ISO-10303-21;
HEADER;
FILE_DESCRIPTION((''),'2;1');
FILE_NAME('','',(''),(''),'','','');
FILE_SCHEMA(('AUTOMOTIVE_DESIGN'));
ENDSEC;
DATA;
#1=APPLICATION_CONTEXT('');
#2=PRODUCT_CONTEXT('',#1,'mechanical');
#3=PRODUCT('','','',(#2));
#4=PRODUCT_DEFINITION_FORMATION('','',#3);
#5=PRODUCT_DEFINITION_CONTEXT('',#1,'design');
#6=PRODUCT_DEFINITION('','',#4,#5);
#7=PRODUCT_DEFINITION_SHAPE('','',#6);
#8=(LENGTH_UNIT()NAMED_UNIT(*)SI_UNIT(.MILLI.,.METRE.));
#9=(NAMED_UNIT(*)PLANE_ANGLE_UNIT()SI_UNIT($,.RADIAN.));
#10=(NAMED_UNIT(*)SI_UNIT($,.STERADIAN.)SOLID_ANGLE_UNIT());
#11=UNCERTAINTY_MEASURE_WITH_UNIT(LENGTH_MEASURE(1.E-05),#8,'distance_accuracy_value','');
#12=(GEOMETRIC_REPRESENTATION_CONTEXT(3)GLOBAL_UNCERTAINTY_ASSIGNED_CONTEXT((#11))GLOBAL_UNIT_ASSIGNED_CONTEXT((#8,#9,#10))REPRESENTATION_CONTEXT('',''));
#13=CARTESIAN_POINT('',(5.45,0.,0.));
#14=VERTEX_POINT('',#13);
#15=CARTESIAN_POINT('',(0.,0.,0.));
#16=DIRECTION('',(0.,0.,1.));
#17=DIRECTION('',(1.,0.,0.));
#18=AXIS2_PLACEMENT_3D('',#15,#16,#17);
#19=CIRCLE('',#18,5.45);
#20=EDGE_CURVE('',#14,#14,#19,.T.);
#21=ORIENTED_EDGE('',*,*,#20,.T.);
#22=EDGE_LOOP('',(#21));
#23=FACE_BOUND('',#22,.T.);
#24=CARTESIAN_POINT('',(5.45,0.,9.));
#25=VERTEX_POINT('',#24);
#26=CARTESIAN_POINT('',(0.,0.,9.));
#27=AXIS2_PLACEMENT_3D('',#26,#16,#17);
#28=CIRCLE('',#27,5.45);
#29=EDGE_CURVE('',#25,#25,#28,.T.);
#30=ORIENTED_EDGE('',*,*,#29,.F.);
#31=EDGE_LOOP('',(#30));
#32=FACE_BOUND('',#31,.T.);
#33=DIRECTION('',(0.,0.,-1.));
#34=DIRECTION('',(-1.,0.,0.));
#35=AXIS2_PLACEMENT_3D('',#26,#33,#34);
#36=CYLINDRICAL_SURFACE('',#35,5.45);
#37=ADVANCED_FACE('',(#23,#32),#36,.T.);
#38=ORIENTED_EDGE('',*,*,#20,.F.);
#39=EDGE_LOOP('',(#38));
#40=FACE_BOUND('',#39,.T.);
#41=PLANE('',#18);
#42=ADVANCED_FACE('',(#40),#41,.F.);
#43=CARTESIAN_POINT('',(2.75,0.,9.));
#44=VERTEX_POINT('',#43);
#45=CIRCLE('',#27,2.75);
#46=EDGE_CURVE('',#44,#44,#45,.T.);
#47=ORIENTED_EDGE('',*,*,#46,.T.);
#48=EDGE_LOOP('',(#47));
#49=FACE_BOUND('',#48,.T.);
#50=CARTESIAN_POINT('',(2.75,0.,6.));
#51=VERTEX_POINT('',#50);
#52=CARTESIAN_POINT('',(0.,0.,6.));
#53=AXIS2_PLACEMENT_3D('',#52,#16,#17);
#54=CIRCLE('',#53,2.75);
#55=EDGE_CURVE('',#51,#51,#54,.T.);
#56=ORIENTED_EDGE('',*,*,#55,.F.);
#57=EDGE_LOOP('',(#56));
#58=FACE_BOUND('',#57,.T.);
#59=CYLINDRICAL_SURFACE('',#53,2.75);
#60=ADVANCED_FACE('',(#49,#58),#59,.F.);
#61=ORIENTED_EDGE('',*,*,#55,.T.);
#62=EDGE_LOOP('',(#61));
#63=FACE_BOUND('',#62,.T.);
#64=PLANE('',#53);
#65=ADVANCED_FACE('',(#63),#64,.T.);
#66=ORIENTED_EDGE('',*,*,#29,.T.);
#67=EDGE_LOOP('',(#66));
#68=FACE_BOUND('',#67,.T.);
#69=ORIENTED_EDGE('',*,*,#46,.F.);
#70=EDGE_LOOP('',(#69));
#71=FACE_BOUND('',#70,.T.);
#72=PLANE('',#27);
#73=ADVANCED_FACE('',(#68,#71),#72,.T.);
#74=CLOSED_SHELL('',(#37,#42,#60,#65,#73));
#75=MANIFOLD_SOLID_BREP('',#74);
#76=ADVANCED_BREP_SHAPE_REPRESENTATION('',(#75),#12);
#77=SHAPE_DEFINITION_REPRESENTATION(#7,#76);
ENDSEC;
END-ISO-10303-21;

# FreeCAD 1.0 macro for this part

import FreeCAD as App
import Part
import Sketcher

V = App.Vector
Q = App.Units.Quantity

doc = App.newDocument("Part")
params = doc.addObject("Spreadsheet::Sheet", "Params")
for row, (alias, value) in enumerate([
    ("sketch1_diameter", "10.9 mm"),
    ("pad1_length", "9 mm"),
    ("sketch2_diameter", "5.5 mm"),
    ("pocket1_length", "3 mm"),
], start=1):
    params.set(f"A{row}", alias)
    params.set(f"B{row}", "=" + value)
    params.setAlias(f"B{row}", alias)

body = doc.addObject("PartDesign::Body", "Body")

sketch1 = body.newObject("Sketcher::SketchObject", "Sketch")
sketch1.AttachmentSupport = (doc.getObject("XY_Plane"), [""])
sketch1.MapMode = "FlatFace"
sketch1.addGeometry(Part.Circle(V(0, 0, 0), V(0, 0, 1), 5), False)
sketch1.addConstraint(Sketcher.Constraint("Coincident", 0, 3, -1, 1))
sketch1.addConstraint(Sketcher.Constraint("Diameter", 0, Q("10.9 mm")))
sketch1.setExpression("Constraints[1]", "Params.sketch1_diameter")
pad1 = body.newObject("PartDesign::Pad", "Pad")
pad1.Profile = sketch1
pad1.setExpression("Length", "Params.pad1_length")

sketch2 = body.newObject("Sketcher::SketchObject", "Sketch001")
sketch2.AttachmentSupport = (doc.getObject("XY_Plane"), [""])
sketch2.MapMode = "FlatFace"
sketch2.AttachmentOffset = App.Placement(V(0, 0, 9), App.Rotation())
sketch2.addGeometry(Part.Circle(V(0, 0, 0), V(0, 0, 1), 2.8), False)
sketch2.addConstraint(Sketcher.Constraint("Coincident", 0, 3, -1, 1))
sketch2.addConstraint(Sketcher.Constraint("Diameter", 0, Q("5.5 mm")))
sketch2.setExpression("Constraints[1]", "Params.sketch2_diameter")
pocket1 = body.newObject("PartDesign::Pocket", "Pocket")
pocket1.Profile = sketch2
pocket1.setExpression("Length", "Params.pocket1_length")

doc.recompute()
